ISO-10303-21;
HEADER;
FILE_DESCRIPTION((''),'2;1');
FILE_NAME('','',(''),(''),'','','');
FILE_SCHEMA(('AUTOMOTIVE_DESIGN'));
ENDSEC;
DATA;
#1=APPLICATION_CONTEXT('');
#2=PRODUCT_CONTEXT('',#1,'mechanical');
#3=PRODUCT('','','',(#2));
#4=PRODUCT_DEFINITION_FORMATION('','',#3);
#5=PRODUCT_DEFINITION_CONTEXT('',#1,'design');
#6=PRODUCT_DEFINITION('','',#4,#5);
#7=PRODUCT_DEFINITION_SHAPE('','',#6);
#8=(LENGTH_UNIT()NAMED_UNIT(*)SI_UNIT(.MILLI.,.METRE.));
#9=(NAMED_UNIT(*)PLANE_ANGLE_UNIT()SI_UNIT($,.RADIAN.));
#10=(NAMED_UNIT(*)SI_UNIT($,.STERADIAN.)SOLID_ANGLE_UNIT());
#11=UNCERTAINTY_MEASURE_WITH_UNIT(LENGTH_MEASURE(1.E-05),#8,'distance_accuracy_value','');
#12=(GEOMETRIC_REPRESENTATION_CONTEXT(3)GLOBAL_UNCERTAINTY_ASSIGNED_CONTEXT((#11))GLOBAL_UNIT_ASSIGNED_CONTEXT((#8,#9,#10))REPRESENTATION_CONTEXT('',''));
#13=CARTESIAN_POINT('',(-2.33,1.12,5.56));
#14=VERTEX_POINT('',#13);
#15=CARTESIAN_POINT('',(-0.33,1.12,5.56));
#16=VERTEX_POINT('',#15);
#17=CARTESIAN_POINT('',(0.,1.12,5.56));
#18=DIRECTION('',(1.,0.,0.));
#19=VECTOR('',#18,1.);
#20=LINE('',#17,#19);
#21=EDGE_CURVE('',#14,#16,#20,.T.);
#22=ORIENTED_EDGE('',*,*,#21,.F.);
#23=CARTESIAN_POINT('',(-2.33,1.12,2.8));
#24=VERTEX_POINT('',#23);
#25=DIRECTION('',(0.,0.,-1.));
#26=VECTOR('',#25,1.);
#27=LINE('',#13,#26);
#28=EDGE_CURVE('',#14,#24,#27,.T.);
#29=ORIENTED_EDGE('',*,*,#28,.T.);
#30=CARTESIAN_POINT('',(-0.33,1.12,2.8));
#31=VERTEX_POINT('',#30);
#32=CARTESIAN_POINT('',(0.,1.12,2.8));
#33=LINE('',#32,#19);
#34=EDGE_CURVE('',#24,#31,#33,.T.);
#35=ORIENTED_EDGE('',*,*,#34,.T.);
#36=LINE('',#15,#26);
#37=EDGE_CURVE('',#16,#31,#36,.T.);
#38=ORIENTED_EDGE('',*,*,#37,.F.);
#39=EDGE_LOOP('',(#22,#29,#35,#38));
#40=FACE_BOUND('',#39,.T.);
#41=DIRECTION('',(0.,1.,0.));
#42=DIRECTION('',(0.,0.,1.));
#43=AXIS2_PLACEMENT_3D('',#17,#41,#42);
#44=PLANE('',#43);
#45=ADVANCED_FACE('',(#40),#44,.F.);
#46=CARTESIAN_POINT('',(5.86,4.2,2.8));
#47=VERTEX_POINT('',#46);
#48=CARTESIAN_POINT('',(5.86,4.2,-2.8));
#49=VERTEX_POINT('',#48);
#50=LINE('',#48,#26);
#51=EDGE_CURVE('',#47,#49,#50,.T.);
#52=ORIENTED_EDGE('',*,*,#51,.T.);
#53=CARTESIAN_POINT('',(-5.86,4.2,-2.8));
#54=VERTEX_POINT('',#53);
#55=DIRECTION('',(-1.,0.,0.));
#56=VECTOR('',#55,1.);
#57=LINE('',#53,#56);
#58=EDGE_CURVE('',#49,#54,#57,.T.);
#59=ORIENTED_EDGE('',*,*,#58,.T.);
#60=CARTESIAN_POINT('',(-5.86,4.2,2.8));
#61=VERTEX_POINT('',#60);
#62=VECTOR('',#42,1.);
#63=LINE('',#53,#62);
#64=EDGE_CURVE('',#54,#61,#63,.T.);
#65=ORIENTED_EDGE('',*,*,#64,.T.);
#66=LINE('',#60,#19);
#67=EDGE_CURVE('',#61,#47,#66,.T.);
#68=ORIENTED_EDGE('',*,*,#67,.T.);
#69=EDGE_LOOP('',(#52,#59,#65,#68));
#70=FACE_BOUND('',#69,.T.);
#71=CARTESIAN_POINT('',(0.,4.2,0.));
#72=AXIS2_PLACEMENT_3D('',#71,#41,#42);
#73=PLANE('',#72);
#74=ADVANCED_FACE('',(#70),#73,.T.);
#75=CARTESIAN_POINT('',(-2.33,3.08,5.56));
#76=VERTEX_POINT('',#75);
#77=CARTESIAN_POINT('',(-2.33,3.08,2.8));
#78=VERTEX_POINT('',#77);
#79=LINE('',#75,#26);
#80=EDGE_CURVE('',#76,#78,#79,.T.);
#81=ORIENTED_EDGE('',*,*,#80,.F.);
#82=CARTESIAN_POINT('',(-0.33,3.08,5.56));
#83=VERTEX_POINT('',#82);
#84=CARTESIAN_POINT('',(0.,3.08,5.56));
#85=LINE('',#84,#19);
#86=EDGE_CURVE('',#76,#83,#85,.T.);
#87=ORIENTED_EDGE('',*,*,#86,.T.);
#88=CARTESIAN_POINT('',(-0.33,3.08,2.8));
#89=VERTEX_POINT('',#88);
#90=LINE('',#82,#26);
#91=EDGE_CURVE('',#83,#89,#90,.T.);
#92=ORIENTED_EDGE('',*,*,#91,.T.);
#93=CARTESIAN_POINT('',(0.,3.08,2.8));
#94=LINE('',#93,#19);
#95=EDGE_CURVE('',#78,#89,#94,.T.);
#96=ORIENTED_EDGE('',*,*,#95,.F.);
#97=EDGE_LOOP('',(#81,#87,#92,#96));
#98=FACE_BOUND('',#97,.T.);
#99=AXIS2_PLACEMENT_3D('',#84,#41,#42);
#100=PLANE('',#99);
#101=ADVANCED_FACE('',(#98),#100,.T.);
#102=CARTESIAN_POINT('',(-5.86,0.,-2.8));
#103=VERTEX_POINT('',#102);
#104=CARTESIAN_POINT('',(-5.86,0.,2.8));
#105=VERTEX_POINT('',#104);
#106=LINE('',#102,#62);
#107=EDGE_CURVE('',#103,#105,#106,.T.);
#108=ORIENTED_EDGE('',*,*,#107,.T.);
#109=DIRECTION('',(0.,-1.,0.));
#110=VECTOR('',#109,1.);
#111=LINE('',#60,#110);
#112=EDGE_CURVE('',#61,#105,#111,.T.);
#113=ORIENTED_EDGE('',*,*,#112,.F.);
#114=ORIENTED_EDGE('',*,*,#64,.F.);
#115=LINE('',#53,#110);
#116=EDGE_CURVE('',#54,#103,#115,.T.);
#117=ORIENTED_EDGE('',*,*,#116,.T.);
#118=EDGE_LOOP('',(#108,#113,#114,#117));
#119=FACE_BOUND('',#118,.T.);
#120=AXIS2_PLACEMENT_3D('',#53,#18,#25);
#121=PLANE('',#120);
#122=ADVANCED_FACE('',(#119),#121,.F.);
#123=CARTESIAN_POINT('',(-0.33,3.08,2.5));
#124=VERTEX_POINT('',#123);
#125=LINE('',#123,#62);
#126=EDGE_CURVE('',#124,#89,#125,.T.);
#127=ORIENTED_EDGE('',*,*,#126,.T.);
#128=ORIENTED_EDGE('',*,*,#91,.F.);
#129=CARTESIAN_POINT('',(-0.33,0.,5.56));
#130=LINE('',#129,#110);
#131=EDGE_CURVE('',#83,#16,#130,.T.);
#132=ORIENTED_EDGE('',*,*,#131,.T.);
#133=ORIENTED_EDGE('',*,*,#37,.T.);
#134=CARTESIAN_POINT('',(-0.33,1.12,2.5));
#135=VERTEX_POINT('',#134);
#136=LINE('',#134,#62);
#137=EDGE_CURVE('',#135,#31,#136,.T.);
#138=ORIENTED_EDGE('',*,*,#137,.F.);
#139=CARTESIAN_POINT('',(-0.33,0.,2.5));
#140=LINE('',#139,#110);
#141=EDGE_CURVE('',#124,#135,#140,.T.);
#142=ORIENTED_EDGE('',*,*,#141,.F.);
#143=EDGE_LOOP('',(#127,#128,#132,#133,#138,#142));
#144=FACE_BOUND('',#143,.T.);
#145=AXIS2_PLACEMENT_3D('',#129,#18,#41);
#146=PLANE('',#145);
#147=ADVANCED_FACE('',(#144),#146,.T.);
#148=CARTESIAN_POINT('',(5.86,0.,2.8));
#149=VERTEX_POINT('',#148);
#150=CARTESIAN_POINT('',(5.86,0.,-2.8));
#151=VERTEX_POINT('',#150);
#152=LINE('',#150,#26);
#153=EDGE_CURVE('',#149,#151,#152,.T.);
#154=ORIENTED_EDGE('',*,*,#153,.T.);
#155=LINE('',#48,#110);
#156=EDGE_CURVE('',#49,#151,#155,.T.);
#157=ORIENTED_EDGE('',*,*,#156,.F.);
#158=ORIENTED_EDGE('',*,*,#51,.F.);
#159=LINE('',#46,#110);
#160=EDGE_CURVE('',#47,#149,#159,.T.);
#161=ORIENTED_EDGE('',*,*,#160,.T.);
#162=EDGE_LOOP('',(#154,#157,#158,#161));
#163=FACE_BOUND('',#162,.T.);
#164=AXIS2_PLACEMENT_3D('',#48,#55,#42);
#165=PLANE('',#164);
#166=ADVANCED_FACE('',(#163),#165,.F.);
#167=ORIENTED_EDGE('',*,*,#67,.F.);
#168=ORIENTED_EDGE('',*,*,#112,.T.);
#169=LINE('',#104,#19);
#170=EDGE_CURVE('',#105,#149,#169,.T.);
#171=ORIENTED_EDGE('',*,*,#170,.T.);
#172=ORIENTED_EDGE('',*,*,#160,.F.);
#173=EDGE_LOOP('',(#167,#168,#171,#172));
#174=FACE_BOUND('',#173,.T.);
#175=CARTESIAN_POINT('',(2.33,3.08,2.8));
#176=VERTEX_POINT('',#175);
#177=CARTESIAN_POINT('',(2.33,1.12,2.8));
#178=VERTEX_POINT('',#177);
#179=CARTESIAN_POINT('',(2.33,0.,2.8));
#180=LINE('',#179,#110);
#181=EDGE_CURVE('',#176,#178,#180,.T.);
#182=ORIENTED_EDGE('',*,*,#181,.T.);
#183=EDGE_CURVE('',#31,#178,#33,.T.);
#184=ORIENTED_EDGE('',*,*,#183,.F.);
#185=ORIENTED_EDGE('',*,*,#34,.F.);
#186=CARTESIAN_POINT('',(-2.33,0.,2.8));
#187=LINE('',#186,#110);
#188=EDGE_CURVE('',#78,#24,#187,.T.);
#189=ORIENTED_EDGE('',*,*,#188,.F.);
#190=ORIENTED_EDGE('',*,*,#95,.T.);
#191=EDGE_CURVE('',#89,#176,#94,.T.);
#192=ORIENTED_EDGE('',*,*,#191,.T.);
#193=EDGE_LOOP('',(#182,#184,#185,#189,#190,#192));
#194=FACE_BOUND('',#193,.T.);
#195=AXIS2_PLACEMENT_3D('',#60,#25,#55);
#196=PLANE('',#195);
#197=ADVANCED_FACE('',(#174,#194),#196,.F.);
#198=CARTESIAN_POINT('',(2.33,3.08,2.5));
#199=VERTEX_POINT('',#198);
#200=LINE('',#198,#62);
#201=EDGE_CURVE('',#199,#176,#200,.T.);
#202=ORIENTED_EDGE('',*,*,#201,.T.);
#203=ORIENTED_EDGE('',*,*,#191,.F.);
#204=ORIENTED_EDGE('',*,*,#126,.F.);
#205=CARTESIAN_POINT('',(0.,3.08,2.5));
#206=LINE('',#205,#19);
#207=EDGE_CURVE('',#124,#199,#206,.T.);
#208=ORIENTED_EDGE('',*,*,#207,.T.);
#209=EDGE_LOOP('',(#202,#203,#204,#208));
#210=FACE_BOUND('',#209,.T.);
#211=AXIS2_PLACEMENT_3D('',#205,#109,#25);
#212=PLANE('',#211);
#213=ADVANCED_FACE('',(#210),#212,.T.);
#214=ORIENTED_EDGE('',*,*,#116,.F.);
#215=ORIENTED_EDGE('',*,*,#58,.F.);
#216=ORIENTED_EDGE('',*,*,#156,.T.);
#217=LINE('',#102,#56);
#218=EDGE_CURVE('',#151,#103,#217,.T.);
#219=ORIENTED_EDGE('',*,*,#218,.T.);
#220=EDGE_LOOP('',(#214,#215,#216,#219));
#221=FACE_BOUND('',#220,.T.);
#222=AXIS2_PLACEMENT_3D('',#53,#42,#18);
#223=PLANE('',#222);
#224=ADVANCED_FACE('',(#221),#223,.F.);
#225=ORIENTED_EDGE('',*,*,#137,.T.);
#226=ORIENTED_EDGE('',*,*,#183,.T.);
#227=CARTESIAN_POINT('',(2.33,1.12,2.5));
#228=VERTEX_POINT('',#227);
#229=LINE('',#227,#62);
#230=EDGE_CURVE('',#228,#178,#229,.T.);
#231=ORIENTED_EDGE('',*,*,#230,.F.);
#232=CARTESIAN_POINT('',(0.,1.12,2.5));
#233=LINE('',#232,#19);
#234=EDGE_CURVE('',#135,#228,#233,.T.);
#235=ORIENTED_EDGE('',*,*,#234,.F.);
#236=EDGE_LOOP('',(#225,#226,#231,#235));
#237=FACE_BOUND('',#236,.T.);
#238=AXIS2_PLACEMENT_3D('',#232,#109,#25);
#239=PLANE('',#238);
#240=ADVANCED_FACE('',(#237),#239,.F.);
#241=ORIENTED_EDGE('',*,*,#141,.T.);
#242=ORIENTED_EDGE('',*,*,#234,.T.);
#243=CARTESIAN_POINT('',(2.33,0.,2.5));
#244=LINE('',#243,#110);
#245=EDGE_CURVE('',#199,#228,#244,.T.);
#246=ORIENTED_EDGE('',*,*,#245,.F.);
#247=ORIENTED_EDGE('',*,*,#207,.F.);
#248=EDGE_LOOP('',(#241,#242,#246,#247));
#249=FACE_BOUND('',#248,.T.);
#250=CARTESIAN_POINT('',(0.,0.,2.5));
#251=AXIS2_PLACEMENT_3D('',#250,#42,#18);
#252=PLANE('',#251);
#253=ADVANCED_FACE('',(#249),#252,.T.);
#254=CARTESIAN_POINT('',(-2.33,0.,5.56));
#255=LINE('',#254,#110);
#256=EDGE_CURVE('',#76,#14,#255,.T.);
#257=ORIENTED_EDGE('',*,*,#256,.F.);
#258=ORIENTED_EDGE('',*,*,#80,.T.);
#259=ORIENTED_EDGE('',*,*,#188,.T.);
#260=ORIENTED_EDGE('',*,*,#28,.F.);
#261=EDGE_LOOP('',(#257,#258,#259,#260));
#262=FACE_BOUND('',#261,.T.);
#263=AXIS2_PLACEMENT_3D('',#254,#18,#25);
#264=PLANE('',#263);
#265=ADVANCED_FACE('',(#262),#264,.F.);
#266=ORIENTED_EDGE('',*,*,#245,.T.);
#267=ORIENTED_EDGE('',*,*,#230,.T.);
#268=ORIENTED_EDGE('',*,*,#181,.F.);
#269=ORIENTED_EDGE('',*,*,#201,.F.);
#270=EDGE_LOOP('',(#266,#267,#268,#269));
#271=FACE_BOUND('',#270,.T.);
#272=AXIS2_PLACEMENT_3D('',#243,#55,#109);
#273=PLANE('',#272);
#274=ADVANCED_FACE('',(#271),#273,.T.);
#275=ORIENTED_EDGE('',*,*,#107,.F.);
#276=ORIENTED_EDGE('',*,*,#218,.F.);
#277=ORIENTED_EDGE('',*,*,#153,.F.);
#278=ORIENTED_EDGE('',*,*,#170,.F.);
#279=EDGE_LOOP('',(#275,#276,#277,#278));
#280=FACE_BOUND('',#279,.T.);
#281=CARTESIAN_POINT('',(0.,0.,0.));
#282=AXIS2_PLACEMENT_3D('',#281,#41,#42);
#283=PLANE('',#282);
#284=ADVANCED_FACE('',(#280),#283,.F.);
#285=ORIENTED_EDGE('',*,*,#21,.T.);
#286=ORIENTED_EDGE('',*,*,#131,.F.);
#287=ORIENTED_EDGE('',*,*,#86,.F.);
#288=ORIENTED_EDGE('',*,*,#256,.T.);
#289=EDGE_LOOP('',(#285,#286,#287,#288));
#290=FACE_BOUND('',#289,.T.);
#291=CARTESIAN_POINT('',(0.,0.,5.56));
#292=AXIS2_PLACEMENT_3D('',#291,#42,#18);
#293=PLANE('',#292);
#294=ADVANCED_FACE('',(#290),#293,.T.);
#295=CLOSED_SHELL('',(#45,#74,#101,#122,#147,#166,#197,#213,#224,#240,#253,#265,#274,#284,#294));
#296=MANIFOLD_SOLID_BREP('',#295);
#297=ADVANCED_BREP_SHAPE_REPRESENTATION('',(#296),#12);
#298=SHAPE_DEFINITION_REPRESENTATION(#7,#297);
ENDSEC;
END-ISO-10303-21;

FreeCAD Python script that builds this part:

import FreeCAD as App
import Part
import Sketcher

doc = App.newDocument("Part")
body = doc.addObject("PartDesign::Body", "Body")

sketch1 = body.newObject("Sketcher::SketchObject", "Sketch")
sketch1.AttachmentSupport = (doc.getObject("XZ_Plane"), [""])
sketch1.MapMode = "FlatFace"
sketch1.addGeometry([
    Part.LineSegment(App.Vector(-6, -3, 0), App.Vector(-6, 3, 0)),
    Part.LineSegment(App.Vector(-6, 3, 0), App.Vector(6, 3, 0)),
    Part.LineSegment(App.Vector(6, 3, 0), App.Vector(6, -3, 0)),
    Part.LineSegment(App.Vector(6, -3, 0), App.Vector(-6, -3, 0)),
], False)
sketch1.addConstraint([
    Sketcher.Constraint("Coincident", 0, 2, 1, 1),
    Sketcher.Constraint("Coincident", 1, 2, 2, 1),
    Sketcher.Constraint("Coincident", 2, 2, 3, 1),
    Sketcher.Constraint("Coincident", 3, 2, 0, 1),
    Sketcher.Constraint("Vertical", 0),
    Sketcher.Constraint("Horizontal", 1),
    Sketcher.Constraint("Vertical", 2),
    Sketcher.Constraint("Horizontal", 3),
    Sketcher.Constraint("Symmetric", 0, 2, 2, 2, -1, 1),
    Sketcher.Constraint("DistanceY", 0, 1, 0, 2, 5.6),
    Sketcher.Constraint("DistanceX", 1, 1, 1, 2, 11.72),
])
pad1 = body.newObject("PartDesign::Pad", "Pad")
pad1.Profile = sketch1
pad1.Length = 4.2
pad1.Reversed = True

sketch2 = body.newObject("Sketcher::SketchObject", "Sketch001")
sketch2.AttachmentSupport = (doc.getObject("XY_Plane"), [""])
sketch2.MapMode = "FlatFace"
sketch2.AttachmentOffset = App.Placement(App.Vector(0, 0, 2.8), App.Rotation())
sketch2.addGeometry([
    Part.LineSegment(App.Vector(-2.3, 3.1, 0), App.Vector(-2.3, 1.1, 0)),
    Part.LineSegment(App.Vector(-2.3, 1.1, 0), App.Vector(-0.3, 1.1, 0)),
    Part.LineSegment(App.Vector(-0.3, 1.1, 0), App.Vector(-0.3, 3.1, 0)),
    Part.LineSegment(App.Vector(-0.3, 3.1, 0), App.Vector(-2.3, 3.1, 0)),
], False)
sketch2.addConstraint([
    Sketcher.Constraint("Coincident", 0, 2, 1, 1),
    Sketcher.Constraint("Coincident", 1, 2, 2, 1),
    Sketcher.Constraint("Coincident", 2, 2, 3, 1),
    Sketcher.Constraint("Coincident", 3, 2, 0, 1),
    Sketcher.Constraint("Vertical", 0),
    Sketcher.Constraint("Horizontal", 1),
    Sketcher.Constraint("Vertical", 2),
    Sketcher.Constraint("Horizontal", 3),
    Sketcher.Constraint("DistanceX", 1, 1, 1, 2, 2.0),
    Sketcher.Constraint("DistanceY", 0, 2, 0, 1, 1.96),
    Sketcher.Constraint("DistanceX", 0, 2, -1, 1, 2.33),
    Sketcher.Constraint("DistanceY", -1, 1, 0, 2, 1.12),
])
pad2 = body.newObject("PartDesign::Pad", "Pad001")
pad2.Profile = sketch2
pad2.Length = 2.76

sketch3 = body.newObject("Sketcher::SketchObject", "Sketch002")
sketch3.AttachmentSupport = (doc.getObject("XY_Plane"), [""])
sketch3.MapMode = "FlatFace"
sketch3.AttachmentOffset = App.Placement(App.Vector(0, 0, 2.8), App.Rotation())
sketch3.addGeometry([
    Part.LineSegment(App.Vector(-0.3, 3.1, 0), App.Vector(-0.3, 1.1, 0)),
    Part.LineSegment(App.Vector(-0.3, 1.1, 0), App.Vector(2.3, 1.1, 0)),
    Part.LineSegment(App.Vector(2.3, 1.1, 0), App.Vector(2.3, 3.1, 0)),
    Part.LineSegment(App.Vector(2.3, 3.1, 0), App.Vector(-0.3, 3.1, 0)),
], False)
sketch3.addConstraint([
    Sketcher.Constraint("Coincident", 0, 2, 1, 1),
    Sketcher.Constraint("Coincident", 1, 2, 2, 1),
    Sketcher.Constraint("Coincident", 2, 2, 3, 1),
    Sketcher.Constraint("Coincident", 3, 2, 0, 1),
    Sketcher.Constraint("Vertical", 0),
    Sketcher.Constraint("Horizontal", 1),
    Sketcher.Constraint("Vertical", 2),
    Sketcher.Constraint("Horizontal", 3),
    Sketcher.Constraint("DistanceX", 1, 1, 1, 2, 2.66),
    Sketcher.Constraint("DistanceY", 0, 2, 0, 1, 1.96),
    Sketcher.Constraint("DistanceX", 0, 2, -1, 1, 0.33),
    Sketcher.Constraint("DistanceY", -1, 1, 0, 2, 1.12),
])
pocket1 = body.newObject("PartDesign::Pocket", "Pocket")
pocket1.Profile = sketch3
pocket1.Length = 0.3

doc.recompute()
